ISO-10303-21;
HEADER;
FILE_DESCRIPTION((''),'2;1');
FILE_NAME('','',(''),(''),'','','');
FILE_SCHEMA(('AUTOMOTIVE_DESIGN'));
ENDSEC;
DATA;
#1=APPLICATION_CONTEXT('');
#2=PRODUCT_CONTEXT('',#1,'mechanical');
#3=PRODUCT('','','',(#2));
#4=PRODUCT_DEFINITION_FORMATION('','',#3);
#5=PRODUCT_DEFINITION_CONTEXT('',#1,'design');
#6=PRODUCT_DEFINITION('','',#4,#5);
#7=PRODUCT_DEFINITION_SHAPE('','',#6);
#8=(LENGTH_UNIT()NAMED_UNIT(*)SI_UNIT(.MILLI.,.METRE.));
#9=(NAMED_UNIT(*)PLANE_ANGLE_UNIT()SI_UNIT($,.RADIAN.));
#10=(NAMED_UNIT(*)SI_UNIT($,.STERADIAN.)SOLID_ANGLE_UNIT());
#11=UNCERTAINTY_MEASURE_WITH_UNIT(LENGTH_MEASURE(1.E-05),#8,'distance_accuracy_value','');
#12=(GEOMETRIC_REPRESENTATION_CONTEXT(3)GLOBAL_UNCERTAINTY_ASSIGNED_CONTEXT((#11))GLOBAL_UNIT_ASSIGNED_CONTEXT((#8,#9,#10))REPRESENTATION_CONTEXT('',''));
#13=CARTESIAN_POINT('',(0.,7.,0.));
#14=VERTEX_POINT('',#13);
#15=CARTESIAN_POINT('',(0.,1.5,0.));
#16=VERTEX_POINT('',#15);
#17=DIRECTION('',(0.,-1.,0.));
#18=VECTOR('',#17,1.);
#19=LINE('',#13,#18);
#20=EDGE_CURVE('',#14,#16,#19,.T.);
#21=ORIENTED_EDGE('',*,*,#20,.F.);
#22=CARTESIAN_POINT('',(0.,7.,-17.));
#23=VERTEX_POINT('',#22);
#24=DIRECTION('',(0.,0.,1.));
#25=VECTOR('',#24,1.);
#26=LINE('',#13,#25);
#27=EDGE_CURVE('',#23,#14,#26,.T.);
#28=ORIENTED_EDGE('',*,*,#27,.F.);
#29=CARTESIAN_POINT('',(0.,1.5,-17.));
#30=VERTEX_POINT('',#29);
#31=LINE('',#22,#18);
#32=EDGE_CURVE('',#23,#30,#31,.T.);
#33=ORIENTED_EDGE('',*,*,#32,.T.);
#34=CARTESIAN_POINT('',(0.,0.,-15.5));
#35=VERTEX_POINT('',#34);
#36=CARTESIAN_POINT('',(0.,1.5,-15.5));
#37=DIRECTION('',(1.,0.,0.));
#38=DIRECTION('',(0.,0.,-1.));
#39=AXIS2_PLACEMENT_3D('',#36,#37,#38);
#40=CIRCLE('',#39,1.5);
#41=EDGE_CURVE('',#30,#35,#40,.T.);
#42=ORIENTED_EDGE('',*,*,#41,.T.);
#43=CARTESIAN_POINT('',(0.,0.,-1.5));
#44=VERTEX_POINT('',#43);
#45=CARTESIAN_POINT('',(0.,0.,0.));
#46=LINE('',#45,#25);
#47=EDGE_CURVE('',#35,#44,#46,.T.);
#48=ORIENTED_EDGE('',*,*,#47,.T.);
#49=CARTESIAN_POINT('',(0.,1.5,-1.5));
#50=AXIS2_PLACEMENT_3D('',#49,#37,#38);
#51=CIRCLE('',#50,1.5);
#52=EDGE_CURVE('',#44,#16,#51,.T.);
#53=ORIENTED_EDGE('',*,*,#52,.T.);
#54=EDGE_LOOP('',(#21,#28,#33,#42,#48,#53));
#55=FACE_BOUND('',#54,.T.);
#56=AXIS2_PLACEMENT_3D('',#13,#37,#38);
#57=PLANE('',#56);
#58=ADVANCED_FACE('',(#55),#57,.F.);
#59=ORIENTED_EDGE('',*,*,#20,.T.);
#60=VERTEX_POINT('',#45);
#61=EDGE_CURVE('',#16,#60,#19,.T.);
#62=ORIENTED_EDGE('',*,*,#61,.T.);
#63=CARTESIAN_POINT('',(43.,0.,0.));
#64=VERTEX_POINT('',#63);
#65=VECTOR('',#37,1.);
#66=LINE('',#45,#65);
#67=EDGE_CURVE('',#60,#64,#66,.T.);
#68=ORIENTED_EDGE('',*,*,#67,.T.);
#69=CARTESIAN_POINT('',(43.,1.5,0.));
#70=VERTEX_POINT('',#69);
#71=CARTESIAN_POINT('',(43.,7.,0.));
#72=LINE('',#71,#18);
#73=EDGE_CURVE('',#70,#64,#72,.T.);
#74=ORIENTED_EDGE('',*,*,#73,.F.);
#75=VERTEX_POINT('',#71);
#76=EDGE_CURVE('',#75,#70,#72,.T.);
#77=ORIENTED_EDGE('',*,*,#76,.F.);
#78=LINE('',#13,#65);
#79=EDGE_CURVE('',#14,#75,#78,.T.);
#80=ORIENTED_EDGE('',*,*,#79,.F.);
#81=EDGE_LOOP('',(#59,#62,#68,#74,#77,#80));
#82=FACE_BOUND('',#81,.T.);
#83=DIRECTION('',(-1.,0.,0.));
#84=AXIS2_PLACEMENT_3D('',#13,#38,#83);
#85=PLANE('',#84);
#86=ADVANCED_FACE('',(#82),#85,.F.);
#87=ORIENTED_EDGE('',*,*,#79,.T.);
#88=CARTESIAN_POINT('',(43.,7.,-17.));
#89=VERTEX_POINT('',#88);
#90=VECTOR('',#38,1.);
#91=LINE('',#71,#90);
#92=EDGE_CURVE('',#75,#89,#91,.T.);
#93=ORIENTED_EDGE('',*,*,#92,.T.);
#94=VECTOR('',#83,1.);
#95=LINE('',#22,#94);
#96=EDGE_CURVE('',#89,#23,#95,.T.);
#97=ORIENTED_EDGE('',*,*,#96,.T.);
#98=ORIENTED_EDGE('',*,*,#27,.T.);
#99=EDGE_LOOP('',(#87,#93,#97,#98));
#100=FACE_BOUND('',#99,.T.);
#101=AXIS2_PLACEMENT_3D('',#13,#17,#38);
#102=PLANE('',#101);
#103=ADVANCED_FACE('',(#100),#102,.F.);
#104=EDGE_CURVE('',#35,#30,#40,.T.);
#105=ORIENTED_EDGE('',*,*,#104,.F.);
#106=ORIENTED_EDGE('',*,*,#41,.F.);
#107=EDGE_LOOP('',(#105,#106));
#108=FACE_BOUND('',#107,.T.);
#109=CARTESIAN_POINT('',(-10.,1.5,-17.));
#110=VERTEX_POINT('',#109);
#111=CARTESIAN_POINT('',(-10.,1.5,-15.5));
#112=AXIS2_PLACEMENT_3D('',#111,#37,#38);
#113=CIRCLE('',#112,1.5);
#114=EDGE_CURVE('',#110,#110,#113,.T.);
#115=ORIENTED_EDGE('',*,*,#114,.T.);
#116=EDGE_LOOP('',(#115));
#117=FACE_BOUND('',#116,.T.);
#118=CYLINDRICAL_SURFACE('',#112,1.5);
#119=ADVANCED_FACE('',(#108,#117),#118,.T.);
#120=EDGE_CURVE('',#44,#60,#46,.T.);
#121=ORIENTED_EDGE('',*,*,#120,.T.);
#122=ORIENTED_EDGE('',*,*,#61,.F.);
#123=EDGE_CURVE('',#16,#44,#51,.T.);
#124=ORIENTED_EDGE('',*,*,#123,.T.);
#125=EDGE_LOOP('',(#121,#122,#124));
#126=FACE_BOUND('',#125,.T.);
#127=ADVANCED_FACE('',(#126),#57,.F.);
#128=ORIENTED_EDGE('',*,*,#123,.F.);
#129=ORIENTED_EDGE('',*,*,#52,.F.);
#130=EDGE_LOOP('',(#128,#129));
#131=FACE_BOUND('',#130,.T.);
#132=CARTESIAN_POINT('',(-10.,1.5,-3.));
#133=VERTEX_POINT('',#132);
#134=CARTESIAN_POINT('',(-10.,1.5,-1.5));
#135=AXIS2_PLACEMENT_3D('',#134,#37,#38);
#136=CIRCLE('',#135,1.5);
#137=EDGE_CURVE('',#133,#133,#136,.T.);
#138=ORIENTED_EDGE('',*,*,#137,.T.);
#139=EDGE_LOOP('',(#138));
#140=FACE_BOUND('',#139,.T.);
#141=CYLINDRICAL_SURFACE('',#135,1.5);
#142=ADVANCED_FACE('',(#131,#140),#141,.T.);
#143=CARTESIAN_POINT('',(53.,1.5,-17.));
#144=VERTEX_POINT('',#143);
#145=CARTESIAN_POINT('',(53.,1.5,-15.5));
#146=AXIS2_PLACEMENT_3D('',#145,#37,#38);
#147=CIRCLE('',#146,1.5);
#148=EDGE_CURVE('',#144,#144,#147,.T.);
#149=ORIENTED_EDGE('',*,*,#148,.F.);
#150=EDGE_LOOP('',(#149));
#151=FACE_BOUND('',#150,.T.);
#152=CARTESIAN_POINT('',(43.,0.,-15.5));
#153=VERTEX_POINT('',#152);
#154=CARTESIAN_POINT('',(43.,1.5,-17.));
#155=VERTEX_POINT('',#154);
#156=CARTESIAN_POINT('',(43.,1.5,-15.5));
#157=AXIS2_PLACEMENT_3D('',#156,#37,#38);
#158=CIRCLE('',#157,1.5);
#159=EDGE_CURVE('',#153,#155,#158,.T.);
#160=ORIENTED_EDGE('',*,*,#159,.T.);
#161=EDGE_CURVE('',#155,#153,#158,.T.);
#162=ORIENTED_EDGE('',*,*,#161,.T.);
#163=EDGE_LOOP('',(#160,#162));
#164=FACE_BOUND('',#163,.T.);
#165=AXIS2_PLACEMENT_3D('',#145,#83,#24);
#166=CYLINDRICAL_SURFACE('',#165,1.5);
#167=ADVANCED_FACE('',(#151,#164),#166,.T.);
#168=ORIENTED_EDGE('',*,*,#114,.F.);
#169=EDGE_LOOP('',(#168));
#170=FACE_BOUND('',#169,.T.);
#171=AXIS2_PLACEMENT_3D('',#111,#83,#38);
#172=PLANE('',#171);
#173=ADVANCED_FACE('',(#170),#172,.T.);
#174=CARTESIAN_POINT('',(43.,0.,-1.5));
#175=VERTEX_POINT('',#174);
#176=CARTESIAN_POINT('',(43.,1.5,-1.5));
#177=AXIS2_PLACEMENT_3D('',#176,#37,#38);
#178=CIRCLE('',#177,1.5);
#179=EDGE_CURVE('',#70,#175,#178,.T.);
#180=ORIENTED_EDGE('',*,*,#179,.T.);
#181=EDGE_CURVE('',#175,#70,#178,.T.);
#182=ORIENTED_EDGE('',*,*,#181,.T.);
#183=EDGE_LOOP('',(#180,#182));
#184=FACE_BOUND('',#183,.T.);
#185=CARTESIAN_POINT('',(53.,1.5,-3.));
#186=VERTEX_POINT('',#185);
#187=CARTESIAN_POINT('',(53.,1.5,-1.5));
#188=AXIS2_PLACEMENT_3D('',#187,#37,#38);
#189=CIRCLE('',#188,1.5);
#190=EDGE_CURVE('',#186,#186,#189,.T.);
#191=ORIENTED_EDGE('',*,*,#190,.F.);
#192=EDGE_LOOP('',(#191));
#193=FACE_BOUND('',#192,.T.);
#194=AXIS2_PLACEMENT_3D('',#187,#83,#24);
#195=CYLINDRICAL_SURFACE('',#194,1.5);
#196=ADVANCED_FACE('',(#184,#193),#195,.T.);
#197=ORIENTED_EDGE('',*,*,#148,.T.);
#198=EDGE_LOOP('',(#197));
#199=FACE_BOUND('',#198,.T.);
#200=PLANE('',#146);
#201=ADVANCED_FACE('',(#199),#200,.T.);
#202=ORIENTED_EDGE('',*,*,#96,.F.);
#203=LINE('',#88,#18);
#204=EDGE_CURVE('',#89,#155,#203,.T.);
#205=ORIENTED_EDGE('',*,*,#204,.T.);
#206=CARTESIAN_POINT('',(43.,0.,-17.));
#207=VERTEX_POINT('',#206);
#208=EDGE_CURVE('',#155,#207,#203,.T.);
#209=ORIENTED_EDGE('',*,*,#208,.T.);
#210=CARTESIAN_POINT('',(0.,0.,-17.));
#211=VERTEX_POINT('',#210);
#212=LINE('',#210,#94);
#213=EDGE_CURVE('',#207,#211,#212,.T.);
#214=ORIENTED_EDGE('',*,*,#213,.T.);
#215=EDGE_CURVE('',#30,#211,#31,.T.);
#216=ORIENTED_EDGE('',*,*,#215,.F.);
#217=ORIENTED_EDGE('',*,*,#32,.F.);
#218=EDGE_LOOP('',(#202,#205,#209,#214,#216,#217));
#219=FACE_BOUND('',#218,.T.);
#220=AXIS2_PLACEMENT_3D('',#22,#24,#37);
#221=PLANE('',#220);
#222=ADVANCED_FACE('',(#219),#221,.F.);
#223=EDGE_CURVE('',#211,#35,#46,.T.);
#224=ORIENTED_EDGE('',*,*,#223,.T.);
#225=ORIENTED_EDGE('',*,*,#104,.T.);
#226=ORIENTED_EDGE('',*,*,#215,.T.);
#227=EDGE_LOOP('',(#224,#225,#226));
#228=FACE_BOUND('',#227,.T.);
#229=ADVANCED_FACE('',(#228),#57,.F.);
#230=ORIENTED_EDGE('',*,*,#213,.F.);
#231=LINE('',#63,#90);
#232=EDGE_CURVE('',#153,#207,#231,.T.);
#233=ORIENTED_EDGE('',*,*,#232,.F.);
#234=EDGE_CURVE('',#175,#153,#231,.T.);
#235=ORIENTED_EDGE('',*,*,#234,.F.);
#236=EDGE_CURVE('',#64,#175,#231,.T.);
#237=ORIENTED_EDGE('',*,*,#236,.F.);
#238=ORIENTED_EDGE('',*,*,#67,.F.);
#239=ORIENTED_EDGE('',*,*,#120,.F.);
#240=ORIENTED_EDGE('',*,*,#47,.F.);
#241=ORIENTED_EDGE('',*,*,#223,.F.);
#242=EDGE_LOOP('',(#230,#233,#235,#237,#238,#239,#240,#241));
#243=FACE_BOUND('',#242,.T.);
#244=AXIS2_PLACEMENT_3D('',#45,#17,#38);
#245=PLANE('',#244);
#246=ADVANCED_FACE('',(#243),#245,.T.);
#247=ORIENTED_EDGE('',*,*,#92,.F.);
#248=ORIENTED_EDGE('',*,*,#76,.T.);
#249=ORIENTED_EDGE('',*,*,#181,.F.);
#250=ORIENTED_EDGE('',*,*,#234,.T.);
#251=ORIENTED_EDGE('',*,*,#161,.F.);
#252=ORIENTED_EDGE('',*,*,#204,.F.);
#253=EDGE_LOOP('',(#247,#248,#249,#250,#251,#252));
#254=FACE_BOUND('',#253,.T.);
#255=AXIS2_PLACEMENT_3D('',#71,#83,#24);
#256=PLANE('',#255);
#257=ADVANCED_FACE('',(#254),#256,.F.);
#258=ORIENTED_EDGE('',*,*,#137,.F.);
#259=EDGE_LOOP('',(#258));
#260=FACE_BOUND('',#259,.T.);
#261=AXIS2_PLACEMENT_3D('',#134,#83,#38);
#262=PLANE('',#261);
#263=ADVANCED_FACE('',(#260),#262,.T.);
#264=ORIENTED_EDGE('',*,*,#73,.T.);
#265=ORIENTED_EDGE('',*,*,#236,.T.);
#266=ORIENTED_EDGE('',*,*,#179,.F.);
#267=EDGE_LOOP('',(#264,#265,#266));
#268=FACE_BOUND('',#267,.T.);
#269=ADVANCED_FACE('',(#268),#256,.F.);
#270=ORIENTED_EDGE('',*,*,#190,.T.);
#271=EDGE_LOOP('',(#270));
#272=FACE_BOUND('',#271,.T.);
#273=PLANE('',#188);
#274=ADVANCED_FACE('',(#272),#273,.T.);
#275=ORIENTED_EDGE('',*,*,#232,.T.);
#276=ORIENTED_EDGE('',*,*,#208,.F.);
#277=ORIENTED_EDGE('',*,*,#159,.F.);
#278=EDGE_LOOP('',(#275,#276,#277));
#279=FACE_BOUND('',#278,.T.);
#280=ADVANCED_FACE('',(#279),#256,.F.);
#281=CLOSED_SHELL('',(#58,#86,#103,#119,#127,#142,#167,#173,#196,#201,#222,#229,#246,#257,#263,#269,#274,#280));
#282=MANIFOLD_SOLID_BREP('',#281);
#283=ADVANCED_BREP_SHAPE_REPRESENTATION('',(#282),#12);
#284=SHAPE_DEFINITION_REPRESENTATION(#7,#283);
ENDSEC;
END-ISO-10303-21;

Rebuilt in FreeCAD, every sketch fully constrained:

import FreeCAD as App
import Part
import Sketcher

doc = App.newDocument("Part")
body = doc.addObject("PartDesign::Body", "Body")

# Sketch on XZ plane
sketch1 = doc.addObject("Sketcher::SketchObject", "Sketch")
body.addObject(sketch1)
sketch1.AttachmentSupport = (doc.XZ_Plane, [""])
sketch1.MapMode = "FlatFace"
sketch1.addGeometry([
    Part.LineSegment(App.Vector(0, -17, 0), App.Vector(0, 0, 0)),
    Part.LineSegment(App.Vector(0, 0, 0), App.Vector(43, 0, 0)),
    Part.LineSegment(App.Vector(43, 0, 0), App.Vector(43, -17, 0)),
    Part.LineSegment(App.Vector(43, -17, 0), App.Vector(0, -17, 0)),
], False)
sketch1.addConstraint([
    Sketcher.Constraint("Coincident", 0, 2, 1, 1),
    Sketcher.Constraint("Coincident", 1, 2, 2, 1),
    Sketcher.Constraint("Coincident", 2, 2, 3, 1),
    Sketcher.Constraint("Coincident", 3, 2, 0, 1),
    Sketcher.Constraint("Vertical", 0),
    Sketcher.Constraint("Horizontal", 1),
    Sketcher.Constraint("Vertical", 2),
    Sketcher.Constraint("Horizontal", 3),
    Sketcher.Constraint("Coincident", 0, 2, -1, 1),
    Sketcher.Constraint("DistanceX", 1, 1, 1, 2, 43.0),
    Sketcher.Constraint("DistanceY", 0, 1, 0, 2, 17.0),
])
pad1 = doc.addObject("PartDesign::Pad", "Pad")
body.addObject(pad1)
pad1.Profile = sketch1
pad1.Length = 7
pad1.Reversed = True

# Sketch on YZ plane
sketch2 = doc.addObject("Sketcher::SketchObject", "Sketch001")
body.addObject(sketch2)
sketch2.AttachmentSupport = (doc.YZ_Plane, [""])
sketch2.MapMode = "FlatFace"
sketch2.AttachmentOffset = App.Placement(App.Vector(0, 0, 43), App.Rotation())
sketch2.addGeometry([
    Part.Circle(App.Vector(1.5, -15.5, 0), App.Vector(0, 0, 1), 1.5),
    Part.Circle(App.Vector(1.5, -1.5, 0), App.Vector(0, 0, 1), 1.5),
], False)
sketch2.addConstraint([
    Sketcher.Constraint("Equal", 0, 1),
    Sketcher.Constraint("Vertical", 0, 3, 1, 3),
    Sketcher.Constraint("Diameter", 0, 3.0),
    Sketcher.Constraint("DistanceY", 0, 3, 1, 3, 14.0),
    Sketcher.Constraint("DistanceX", -1, 1, 0, 3, 1.5),
    Sketcher.Constraint("DistanceY", 0, 3, -1, 1, 15.5),
])
pad2 = doc.addObject("PartDesign::Pad", "Pad001")
body.addObject(pad2)
pad2.Profile = sketch2
pad2.Length = 10
doc.recompute()

datumplane = doc.addObject("PartDesign::Plane", "DatumPlane")
body.addObject(datumplane)
datumplane.AttachmentSupport = (doc.YZ_Plane, [""])
datumplane.MapMode = "FlatFace"
datumplane.AttachmentOffset = App.Placement(App.Vector(0, 0, 21.5), App.Rotation())
mirrored = doc.addObject("PartDesign::Mirrored", "Mirrored")
body.addObject(mirrored)
mirrored.Originals = [pad2]
mirrored.MirrorPlane = (datumplane, [""])
body.Tip = mirrored

doc.recompute()
